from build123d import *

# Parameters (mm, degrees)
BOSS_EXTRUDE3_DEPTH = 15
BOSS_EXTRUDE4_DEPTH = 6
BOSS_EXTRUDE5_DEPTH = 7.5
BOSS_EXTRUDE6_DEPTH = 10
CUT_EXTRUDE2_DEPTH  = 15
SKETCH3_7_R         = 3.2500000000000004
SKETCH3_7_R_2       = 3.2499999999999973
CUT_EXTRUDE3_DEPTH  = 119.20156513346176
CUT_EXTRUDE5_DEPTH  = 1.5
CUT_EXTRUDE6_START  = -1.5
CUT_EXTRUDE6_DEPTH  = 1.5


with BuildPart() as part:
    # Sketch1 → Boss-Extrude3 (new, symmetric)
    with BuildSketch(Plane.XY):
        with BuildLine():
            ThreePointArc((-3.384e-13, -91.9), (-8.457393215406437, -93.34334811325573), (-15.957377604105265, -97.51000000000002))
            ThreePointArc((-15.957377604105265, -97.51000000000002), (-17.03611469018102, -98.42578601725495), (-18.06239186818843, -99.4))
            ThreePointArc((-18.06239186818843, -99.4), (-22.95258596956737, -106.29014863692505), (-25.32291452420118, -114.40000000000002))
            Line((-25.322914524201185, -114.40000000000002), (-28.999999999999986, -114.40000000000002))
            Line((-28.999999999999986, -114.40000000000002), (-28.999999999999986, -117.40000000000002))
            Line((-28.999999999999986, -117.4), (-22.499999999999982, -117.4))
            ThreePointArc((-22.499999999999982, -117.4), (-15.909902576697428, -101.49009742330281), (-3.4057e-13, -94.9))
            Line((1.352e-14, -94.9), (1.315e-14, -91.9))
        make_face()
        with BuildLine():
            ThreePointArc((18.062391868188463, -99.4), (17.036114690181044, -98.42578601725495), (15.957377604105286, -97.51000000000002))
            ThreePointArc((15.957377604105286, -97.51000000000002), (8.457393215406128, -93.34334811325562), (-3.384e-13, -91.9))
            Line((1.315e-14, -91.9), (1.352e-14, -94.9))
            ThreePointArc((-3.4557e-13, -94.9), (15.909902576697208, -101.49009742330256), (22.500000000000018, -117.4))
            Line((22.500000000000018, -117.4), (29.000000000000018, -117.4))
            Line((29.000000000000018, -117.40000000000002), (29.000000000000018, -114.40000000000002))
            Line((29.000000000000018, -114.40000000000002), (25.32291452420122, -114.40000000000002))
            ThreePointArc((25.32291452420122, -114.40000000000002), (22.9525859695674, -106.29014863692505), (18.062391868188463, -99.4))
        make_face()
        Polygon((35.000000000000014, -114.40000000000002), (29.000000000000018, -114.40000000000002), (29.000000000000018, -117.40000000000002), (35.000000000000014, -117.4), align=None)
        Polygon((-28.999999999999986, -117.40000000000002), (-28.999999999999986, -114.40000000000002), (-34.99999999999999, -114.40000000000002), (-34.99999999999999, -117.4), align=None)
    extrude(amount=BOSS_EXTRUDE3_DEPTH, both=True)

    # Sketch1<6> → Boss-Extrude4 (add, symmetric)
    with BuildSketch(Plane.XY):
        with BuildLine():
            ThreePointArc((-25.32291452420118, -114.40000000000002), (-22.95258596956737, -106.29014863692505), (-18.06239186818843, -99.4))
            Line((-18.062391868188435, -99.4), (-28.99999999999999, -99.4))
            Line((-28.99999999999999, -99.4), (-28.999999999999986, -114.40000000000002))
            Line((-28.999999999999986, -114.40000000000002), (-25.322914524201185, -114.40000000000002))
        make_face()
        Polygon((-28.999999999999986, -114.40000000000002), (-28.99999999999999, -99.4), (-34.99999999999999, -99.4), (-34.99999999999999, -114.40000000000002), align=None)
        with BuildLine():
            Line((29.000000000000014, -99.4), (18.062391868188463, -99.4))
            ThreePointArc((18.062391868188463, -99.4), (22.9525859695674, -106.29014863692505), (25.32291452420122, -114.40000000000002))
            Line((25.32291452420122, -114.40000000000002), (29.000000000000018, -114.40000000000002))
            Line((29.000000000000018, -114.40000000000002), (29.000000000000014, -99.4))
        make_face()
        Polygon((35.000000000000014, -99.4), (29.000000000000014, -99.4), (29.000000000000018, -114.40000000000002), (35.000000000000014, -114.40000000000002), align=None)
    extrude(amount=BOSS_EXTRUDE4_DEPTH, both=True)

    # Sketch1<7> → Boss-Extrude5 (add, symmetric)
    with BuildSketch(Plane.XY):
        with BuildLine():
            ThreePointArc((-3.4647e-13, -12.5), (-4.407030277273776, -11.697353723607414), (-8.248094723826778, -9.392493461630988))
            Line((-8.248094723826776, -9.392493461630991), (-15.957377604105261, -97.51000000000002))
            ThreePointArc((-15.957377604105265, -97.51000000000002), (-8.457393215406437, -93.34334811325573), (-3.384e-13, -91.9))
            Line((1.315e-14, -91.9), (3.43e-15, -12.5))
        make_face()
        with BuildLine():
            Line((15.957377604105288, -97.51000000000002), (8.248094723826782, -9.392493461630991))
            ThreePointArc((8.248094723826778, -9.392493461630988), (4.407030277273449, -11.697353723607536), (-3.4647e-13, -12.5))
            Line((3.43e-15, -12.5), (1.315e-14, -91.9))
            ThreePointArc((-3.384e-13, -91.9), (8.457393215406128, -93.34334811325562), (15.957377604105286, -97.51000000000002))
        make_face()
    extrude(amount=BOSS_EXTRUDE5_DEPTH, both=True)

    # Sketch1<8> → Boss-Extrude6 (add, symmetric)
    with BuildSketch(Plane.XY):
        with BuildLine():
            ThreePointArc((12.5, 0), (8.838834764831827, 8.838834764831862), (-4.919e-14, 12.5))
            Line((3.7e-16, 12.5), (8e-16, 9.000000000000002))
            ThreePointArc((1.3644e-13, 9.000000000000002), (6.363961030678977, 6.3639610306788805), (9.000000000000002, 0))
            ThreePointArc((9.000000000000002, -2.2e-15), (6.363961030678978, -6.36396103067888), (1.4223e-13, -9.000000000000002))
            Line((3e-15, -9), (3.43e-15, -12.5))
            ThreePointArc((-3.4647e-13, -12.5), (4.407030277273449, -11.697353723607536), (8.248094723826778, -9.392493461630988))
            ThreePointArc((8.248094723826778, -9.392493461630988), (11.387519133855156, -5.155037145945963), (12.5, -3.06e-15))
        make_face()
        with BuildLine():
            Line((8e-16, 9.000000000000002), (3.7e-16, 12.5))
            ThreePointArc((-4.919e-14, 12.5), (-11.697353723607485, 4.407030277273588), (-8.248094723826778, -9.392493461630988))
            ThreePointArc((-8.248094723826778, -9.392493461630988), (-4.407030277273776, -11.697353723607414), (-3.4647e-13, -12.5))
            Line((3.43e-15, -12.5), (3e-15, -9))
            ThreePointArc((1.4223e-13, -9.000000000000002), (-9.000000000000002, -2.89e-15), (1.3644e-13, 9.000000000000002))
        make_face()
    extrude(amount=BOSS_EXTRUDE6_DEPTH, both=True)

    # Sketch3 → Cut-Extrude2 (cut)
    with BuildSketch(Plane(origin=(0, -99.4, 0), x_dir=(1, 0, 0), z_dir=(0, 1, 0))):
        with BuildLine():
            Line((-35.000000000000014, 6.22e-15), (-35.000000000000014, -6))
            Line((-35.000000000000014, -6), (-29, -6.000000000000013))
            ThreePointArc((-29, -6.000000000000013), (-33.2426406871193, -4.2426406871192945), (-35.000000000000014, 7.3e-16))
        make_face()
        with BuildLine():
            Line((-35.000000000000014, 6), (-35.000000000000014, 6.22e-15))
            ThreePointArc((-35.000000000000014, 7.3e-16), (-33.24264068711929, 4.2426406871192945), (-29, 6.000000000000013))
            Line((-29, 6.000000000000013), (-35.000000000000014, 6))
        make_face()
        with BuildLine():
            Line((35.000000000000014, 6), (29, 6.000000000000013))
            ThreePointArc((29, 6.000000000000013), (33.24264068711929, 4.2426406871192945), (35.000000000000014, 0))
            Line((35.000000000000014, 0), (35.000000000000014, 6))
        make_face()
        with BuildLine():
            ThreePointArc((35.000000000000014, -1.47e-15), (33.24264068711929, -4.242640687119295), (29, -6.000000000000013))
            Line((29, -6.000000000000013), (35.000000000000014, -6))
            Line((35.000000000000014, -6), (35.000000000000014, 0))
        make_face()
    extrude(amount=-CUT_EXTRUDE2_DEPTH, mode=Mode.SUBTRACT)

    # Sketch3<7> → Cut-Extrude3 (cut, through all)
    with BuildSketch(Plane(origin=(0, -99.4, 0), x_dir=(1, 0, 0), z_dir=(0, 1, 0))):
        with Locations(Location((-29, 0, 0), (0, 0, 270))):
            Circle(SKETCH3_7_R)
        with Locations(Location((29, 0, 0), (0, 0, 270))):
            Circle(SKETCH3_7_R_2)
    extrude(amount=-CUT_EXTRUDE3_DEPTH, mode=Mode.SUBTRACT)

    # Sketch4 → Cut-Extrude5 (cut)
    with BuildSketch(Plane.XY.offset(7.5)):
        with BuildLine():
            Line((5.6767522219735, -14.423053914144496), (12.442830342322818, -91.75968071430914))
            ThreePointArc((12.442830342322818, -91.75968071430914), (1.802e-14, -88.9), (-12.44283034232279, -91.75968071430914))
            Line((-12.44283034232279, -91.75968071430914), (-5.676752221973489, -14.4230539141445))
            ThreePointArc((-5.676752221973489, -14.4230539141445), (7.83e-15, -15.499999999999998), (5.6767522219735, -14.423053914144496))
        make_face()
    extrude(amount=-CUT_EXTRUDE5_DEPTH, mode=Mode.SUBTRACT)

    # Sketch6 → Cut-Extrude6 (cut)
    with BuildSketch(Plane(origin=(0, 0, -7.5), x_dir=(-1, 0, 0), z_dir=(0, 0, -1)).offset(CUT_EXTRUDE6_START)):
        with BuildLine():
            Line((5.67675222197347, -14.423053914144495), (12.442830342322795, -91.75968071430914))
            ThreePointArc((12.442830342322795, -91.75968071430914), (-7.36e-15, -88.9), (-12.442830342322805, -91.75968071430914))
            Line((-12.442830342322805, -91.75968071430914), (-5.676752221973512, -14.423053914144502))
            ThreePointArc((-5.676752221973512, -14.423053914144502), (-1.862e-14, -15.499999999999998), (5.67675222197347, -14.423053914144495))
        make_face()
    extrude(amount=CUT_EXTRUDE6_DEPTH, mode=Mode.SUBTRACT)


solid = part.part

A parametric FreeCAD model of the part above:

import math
import FreeCAD as App
import Part
import Sketcher

V = App.Vector
Q = App.Units.Quantity

doc = App.newDocument("Part")
params = doc.addObject("Spreadsheet::Sheet", "Params")
for row, (alias, value) in enumerate([
    ("sketch1_radius", "22.5 mm"),
    ("sketch1_radius2", "25.5 mm"),
    ("sketch1_height", "3 mm"),
    ("sketch1_width", "12.5 mm"),
    ("pad1_length", "30 mm"),
    ("sketch2_radius", "25.5 mm"),
    ("sketch2_height", "15 mm"),
    ("sketch2_height2", "18 mm"),
    ("pad2_length", "12 mm"),
    ("sketch3_radius", "25.5 mm"),
    ("sketch3_radius2", "12.5 mm"),
    ("pad3_length", "15 mm"),
    ("sketch4_diameter", "25 mm"),
    ("sketch4_diameter2", "18 mm"),
    ("pad4_length", "20 mm"),
    ("sketch5_radius", "6 mm"),
    ("pocket1_length", "15 mm"),
    ("sketch6_diameter", "6.5 mm"),
    ("sketch7_radius", "15.5 mm"),
    ("sketch7_radius2", "28.5 mm"),
    ("pocket3_length", "1.5 mm"),
    ("sketch8_radius", "15.5 mm"),
    ("sketch8_radius2", "28.5 mm"),
    ("pocket4_length", "1.5 mm"),
], start=1):
    params.set(f"A{row}", alias)
    params.set(f"B{row}", "=" + value)
    params.setAlias(f"B{row}", alias)

body = doc.addObject("PartDesign::Body", "Body")

# Sketch on XY plane
sketch1 = doc.addObject("Sketcher::SketchObject", "Sketch")
body.addObject(sketch1)
sketch1.AttachmentSupport = (doc.XY_Plane, [""])
sketch1.MapMode = "FlatFace"
sketch1.addGeometry([
    Part.LineSegment(V(-25.322915, -114.4, 0), V(-35, -114.4, 0)),  # 0
    Part.LineSegment(V(-35, -114.4, 0), V(-35, -117.4, 0)),  # 1
    Part.LineSegment(V(-35, -117.4, 0), V(-22.5, -117.4, 0)),  # 2
    Part.ArcOfCircle(Part.Circle(V(0, -117.4, 0), V(0, 0, 1), 22.5), math.radians(0), math.radians(180)),  # 3
    Part.LineSegment(V(22.5, -117.4, 0), V(35, -117.4, 0)),  # 4
    Part.LineSegment(V(35, -117.4, 0), V(35, -114.4, 0)),  # 5
    Part.LineSegment(V(35, -114.4, 0), V(25.322915, -114.4, 0)),  # 6
    Part.ArcOfCircle(Part.Circle(V(0, -117.4, 0), V(0, 0, 1), 25.5), math.radians(6.756327), math.radians(173.243673)),  # 7
], False)
sketch1.addConstraint([
    Sketcher.Constraint("Coincident", 0, 2, 1, 1),
    Sketcher.Constraint("Coincident", 1, 2, 2, 1),
    Sketcher.Constraint("Coincident", 2, 2, 3, 2),
    Sketcher.Constraint("Coincident", 3, 1, 4, 1),
    Sketcher.Constraint("Coincident", 4, 2, 5, 1),
    Sketcher.Constraint("Coincident", 5, 2, 6, 1),
    Sketcher.Constraint("Coincident", 6, 2, 7, 1),
    Sketcher.Constraint("Coincident", 7, 2, 0, 1),
    Sketcher.Constraint("Horizontal", 0),
    Sketcher.Constraint("Vertical", 1),
    Sketcher.Constraint("Horizontal", 2),
    Sketcher.Constraint("Horizontal", 4),
    Sketcher.Constraint("Vertical", 5),
    Sketcher.Constraint("Horizontal", 6),
    Sketcher.Constraint("Coincident", 7, 3, 3, 3),
    Sketcher.Constraint("Symmetric", 2, 2, 3, 1, -2),
    Sketcher.Constraint("Symmetric", 0, 2, 5, 2, -2),
    Sketcher.Constraint("Horizontal", 7, 3, 1, 2),
    Sketcher.Constraint("Radius", 3, 22.5),
    Sketcher.Constraint("Radius", 7, 25.5),
    Sketcher.Constraint("DistanceY", 1, 2, 1, 1, 3.0),
    Sketcher.Constraint("DistanceX", 2, 1, 2, 2, 12.5),
    Sketcher.Constraint("DistanceY", 3, 3, -1, 1, 117.4),
])
sketch1.setExpression("Constraints[18]", "Params.sketch1_radius")
sketch1.setExpression("Constraints[19]", "Params.sketch1_radius2")
sketch1.setExpression("Constraints[20]", "Params.sketch1_height")
sketch1.setExpression("Constraints[21]", "Params.sketch1_width")
pad1 = doc.addObject("PartDesign::Pad", "Pad")
body.addObject(pad1)
pad1.Profile = sketch1
pad1.setExpression("Length", "Params.pad1_length")
pad1.Midplane = True

# Sketch on XY plane
sketch2 = doc.addObject("Sketcher::SketchObject", "Sketch001")
body.addObject(sketch2)
sketch2.AttachmentSupport = (doc.XY_Plane, [""])
sketch2.MapMode = "FlatFace"
sketch2.addGeometry([
    Part.ArcOfCircle(Part.Circle(V(0, -117.4, 0), V(0, 0, 1), 25.5), math.radians(135.099128), math.radians(173.243673)),  # 0
    Part.LineSegment(V(-18.062392, -99.4, 0), V(-35, -99.4, 0)),  # 1
    Part.LineSegment(V(-35, -99.4, 0), V(-35, -114.4, 0)),  # 2
    Part.LineSegment(V(-35, -114.4, 0), V(-25.322915, -114.4, 0)),  # 3
    Part.ArcOfCircle(Part.Circle(V(0, -117.4, 0), V(0, 0, 1), 25.5), math.radians(6.756327), math.radians(44.900872)),  # 4
    Part.LineSegment(V(25.322915, -114.4, 0), V(35, -114.4, 0)),  # 5
    Part.LineSegment(V(35, -114.4, 0), V(35, -99.4, 0)),  # 6
    Part.LineSegment(V(35, -99.4, 0), V(18.062392, -99.4, 0)),  # 7
], False)
sketch2.addConstraint([
    Sketcher.Constraint("Coincident", 0, 1, 1, 1),
    Sketcher.Constraint("Coincident", 1, 2, 2, 1),
    Sketcher.Constraint("Coincident", 2, 2, 3, 1),
    Sketcher.Constraint("Coincident", 3, 2, 0, 2),
    Sketcher.Constraint("Coincident", 4, 1, 5, 1),
    Sketcher.Constraint("Coincident", 5, 2, 6, 1),
    Sketcher.Constraint("Coincident", 6, 2, 7, 1),
    Sketcher.Constraint("Coincident", 7, 2, 4, 2),
    Sketcher.Constraint("Horizontal", 1),
    Sketcher.Constraint("Vertical", 2),
    Sketcher.Constraint("Horizontal", 3),
    Sketcher.Constraint("Horizontal", 5),
    Sketcher.Constraint("Vertical", 6),
    Sketcher.Constraint("Horizontal", 7),
    Sketcher.Constraint("Coincident", 4, 3, 0, 3),
    Sketcher.Constraint("Equal", 0, 4),
    Sketcher.Constraint("Symmetric", 3, 2, 4, 1, -2),
    Sketcher.Constraint("Symmetric", 1, 2, 6, 2, -2),
    Sketcher.Constraint("Radius", 0, 25.5),
    Sketcher.Constraint("DistanceY", 2, 2, 2, 1, 15.0),
    Sketcher.Constraint("DistanceX", 1, 2, -1, 1, 35.0),
    Sketcher.Constraint("DistanceY", 0, 3, 0, 1, 18.0),
    Sketcher.Constraint("DistanceY", 0, 3, -1, 1, 117.4),
])
sketch2.setExpression("Constraints[18]", "Params.sketch2_radius")
sketch2.setExpression("Constraints[19]", "Params.sketch2_height")
sketch2.setExpression("Constraints[21]", "Params.sketch2_height2")
pad2 = doc.addObject("PartDesign::Pad", "Pad001")
body.addObject(pad2)
pad2.Profile = sketch2
pad2.setExpression("Length", "Params.pad2_length")
pad2.Midplane = True

# Sketch on XY plane
sketch3 = doc.addObject("Sketcher::SketchObject", "Sketch002")
body.addObject(sketch3)
sketch3.AttachmentSupport = (doc.XY_Plane, [""])
sketch3.MapMode = "FlatFace"
sketch3.addGeometry([
    Part.LineSegment(V(-8.248095, -9.392493, 0), V(-15.957378, -97.51, 0)),
    Part.ArcOfCircle(Part.Circle(V(0, -117.4, 0), V(0, 0, 1), 25.5), math.radians(51.260575), math.radians(128.739425)),
    Part.LineSegment(V(15.957378, -97.51, 0), V(8.248095, -9.392493, 0)),
    Part.ArcOfCircle(Part.Circle(V(0, 0, 0), V(0, 0, 1), 12.5), math.radians(-131.288249), math.radians(-48.711751)),
], False)
sketch3.addConstraint([
    Sketcher.Constraint("Coincident", 0, 2, 1, 2),
    Sketcher.Constraint("Coincident", 1, 1, 2, 1),
    Sketcher.Constraint("Coincident", 2, 2, 3, 2),
    Sketcher.Constraint("Coincident", 3, 1, 0, 1),
    Sketcher.Constraint("Coincident", 3, 3, -1, 1),
    Sketcher.Constraint("Symmetric", 0, 2, 1, 1, -2),
    Sketcher.Constraint("Horizontal", 2, 2, 3, 1),
    Sketcher.Constraint("Radius", 1, 25.5),
    Sketcher.Constraint("Radius", 3, 12.5),
    Sketcher.Constraint("Angle", 0, Q("-95 deg")),
    Sketcher.Constraint("DistanceY", 1, 3, -1, 1, 117.4),
    Sketcher.Constraint("DistanceY", 0, 2, -1, 1, 97.51),
])
sketch3.setExpression("Constraints[7]", "Params.sketch3_radius")
sketch3.setExpression("Constraints[8]", "Params.sketch3_radius2")
pad3 = doc.addObject("PartDesign::Pad", "Pad002")
body.addObject(pad3)
pad3.Profile = sketch3
pad3.setExpression("Length", "Params.pad3_length")
pad3.Midplane = True

# Sketch on XY plane
sketch4 = doc.addObject("Sketcher::SketchObject", "Sketch003")
body.addObject(sketch4)
sketch4.AttachmentSupport = (doc.XY_Plane, [""])
sketch4.MapMode = "FlatFace"
sketch4.addGeometry([
    Part.Circle(V(0, 0, 0), V(0, 0, 1), 12.5),
    Part.Circle(V(0, 0, 0), V(0, 0, 1), 9),
], False)
sketch4.addConstraint([
    Sketcher.Constraint("Coincident", 0, 3, -1, 1),
    Sketcher.Constraint("Coincident", 1, 3, -1, 1),
    Sketcher.Constraint("Diameter", 0, 25.0),
    Sketcher.Constraint("Diameter", 1, 18.0),
])
sketch4.setExpression("Constraints[2]", "Params.sketch4_diameter")
sketch4.setExpression("Constraints[3]", "Params.sketch4_diameter2")
pad4 = doc.addObject("PartDesign::Pad", "Pad003")
body.addObject(pad4)
pad4.Profile = sketch4
pad4.setExpression("Length", "Params.pad4_length")
pad4.Midplane = True

# Sketch on XZ plane
sketch5 = doc.addObject("Sketcher::SketchObject", "Sketch004")
body.addObject(sketch5)
sketch5.AttachmentSupport = (doc.XZ_Plane, [""])
sketch5.MapMode = "FlatFace"
sketch5.AttachmentOffset = App.Placement(V(0, 0, 99.4), App.Rotation())
sketch5.addGeometry([
    Part.LineSegment(V(-35, 0, 0), V(-35, 6, 0)),  # 0
    Part.LineSegment(V(-35, 6, 0), V(-29, 6, 0)),  # 1
    Part.ArcOfCircle(Part.Circle(V(-29, 0, 0), V(0, 0, 1), 6), math.radians(90), math.radians(180)),  # 2
    Part.LineSegment(V(-35, -6, 0), V(-35, 0, 0)),  # 3
    Part.ArcOfCircle(Part.Circle(V(-29, 0, 0), V(0, 0, 1), 6), math.radians(180), math.radians(270)),  # 4
    Part.LineSegment(V(-29, -6, 0), V(-35, -6, 0)),  # 5
    Part.LineSegment(V(35, -6, 0), V(29, -6, 0)),  # 6
    Part.ArcOfCircle(Part.Circle(V(29, 0, 0), V(0, 0, 1), 6), math.radians(-90), math.radians(0)),  # 7
    Part.LineSegment(V(35, 0, 0), V(35, -6, 0)),  # 8
    Part.ArcOfCircle(Part.Circle(V(29, 0, 0), V(0, 0, 1), 6), math.radians(0), math.radians(90)),  # 9
    Part.LineSegment(V(29, 6, 0), V(35, 6, 0)),  # 10
    Part.LineSegment(V(35, 6, 0), V(35, 0, 0)),  # 11
], False)
sketch5.addConstraint([
    Sketcher.Constraint("Coincident", 0, 2, 1, 1),
    Sketcher.Constraint("Tangent", 1, 2, 2, 1),
    Sketcher.Constraint("Tangent", 2, 2, 0, 1),
    Sketcher.Constraint("Tangent", 3, 2, 4, 1),
    Sketcher.Constraint("Tangent", 4, 2, 5, 1),
    Sketcher.Constraint("Coincident", 5, 2, 3, 1),
    Sketcher.Constraint("Tangent", 6, 2, 7, 1),
    Sketcher.Constraint("Tangent", 7, 2, 8, 1),
    Sketcher.Constraint("Coincident", 8, 2, 6, 1),
    Sketcher.Constraint("Tangent", 9, 2, 10, 1),
    Sketcher.Constraint("Coincident", 10, 2, 11, 1),
    Sketcher.Constraint("Tangent", 11, 2, 9, 1),
    Sketcher.Constraint("Vertical", 0),
    Sketcher.Constraint("Horizontal", 1),
    Sketcher.Constraint("Vertical", 3),
    Sketcher.Constraint("Horizontal", 5),
    Sketcher.Constraint("Horizontal", 6),
    Sketcher.Constraint("Vertical", 8),
    Sketcher.Constraint("Horizontal", 10),
    Sketcher.Constraint("Vertical", 11),
    Sketcher.Constraint("Coincident", 4, 3, 2, 3),
    Sketcher.Constraint("Coincident", 9, 3, 7, 3),
    Sketcher.Constraint("Equal", 2, 4),
    Sketcher.Constraint("Equal", 4, 7),
    Sketcher.Constraint("Equal", 7, 9),
    Sketcher.Constraint("Symmetric", 2, 3, 7, 3, -1, 1),
    Sketcher.Constraint("PointOnObject", 2, 3, -1),
    Sketcher.Constraint("Radius", 2, 6.0),
    Sketcher.Constraint("DistanceX", 2, 3, -1, 1, 29.0),
])
sketch5.setExpression("Constraints[27]", "Params.sketch5_radius")
pocket1 = doc.addObject("PartDesign::Pocket", "Pocket")
body.addObject(pocket1)
pocket1.Profile = sketch5
pocket1.setExpression("Length", "Params.pocket1_length")
pocket1.Reversed = True

# Sketch on XZ plane
sketch6 = doc.addObject("Sketcher::SketchObject", "Sketch005")
body.addObject(sketch6)
sketch6.AttachmentSupport = (doc.XZ_Plane, [""])
sketch6.MapMode = "FlatFace"
sketch6.AttachmentOffset = App.Placement(V(0, 0, 99.4), App.Rotation())
sketch6.addGeometry([
    Part.Circle(V(-29, 0, 0), V(0, 0, 1), 3.25),
    Part.Circle(V(29, 0, 0), V(0, 0, 1), 3.25),
], False)
sketch6.addConstraint([
    Sketcher.Constraint("Equal", 0, 1),
    Sketcher.Constraint("Symmetric", 0, 3, 1, 3, -1, 1),
    Sketcher.Constraint("PointOnObject", 0, 3, -1),
    Sketcher.Constraint("Diameter", 0, 6.5),
    Sketcher.Constraint("DistanceX", 0, 3, -1, 1, 29.0),
])
sketch6.setExpression("Constraints[3]", "Params.sketch6_diameter")
pocket2 = doc.addObject("PartDesign::Pocket", "Pocket001")
body.addObject(pocket2)
pocket2.Profile = sketch6
pocket2.Type = "ThroughAll"
pocket2.Reversed = True

# Sketch on XY plane
sketch7 = doc.addObject("Sketcher::SketchObject", "Sketch006")
body.addObject(sketch7)
sketch7.AttachmentSupport = (doc.XY_Plane, [""])
sketch7.MapMode = "FlatFace"
sketch7.AttachmentOffset = App.Placement(V(0, 0, 7.5), App.Rotation())
sketch7.addGeometry([
    Part.LineSegment(V(12.44283, -91.759681, 0), V(5.676752, -14.423054, 0)),
    Part.ArcOfCircle(Part.Circle(V(0, 0, 0), V(0, 0, 1), 15.5), math.radians(-111.484042), math.radians(-68.515958)),
    Part.LineSegment(V(-5.676752, -14.423054, 0), V(-12.44283, -91.759681, 0)),
    Part.ArcOfCircle(Part.Circle(V(0, -117.4, 0), V(0, 0, 1), 28.5), math.radians(64.113454), math.radians(115.886546)),
], False)
sketch7.addConstraint([
    Sketcher.Constraint("Coincident", 0, 2, 1, 2),
    Sketcher.Constraint("Coincident", 1, 1, 2, 1),
    Sketcher.Constraint("Coincident", 2, 2, 3, 2),
    Sketcher.Constraint("Coincident", 3, 1, 0, 1),
    Sketcher.Constraint("Coincident", 1, 3, -1, 1),
    Sketcher.Constraint("Symmetric", 2, 2, 3, 1, -2),
    Sketcher.Constraint("Horizontal", 0, 2, 1, 1),
    Sketcher.Constraint("Radius", 1, 15.5),
    Sketcher.Constraint("Radius", 3, 28.5),
    Sketcher.Constraint("Angle", 0, Q("95 deg")),
    Sketcher.Constraint("DistanceY", 3, 3, -1, 1, 117.4),
    Sketcher.Constraint("Distance", 0, 77.63204),
])
sketch7.setExpression("Constraints[7]", "Params.sketch7_radius")
sketch7.setExpression("Constraints[8]", "Params.sketch7_radius2")
pocket3 = doc.addObject("PartDesign::Pocket", "Pocket002")
body.addObject(pocket3)
pocket3.Profile = sketch7
pocket3.setExpression("Length", "Params.pocket3_length")

# Sketch on XY plane
sketch8 = doc.addObject("Sketcher::SketchObject", "Sketch007")
body.addObject(sketch8)
sketch8.AttachmentSupport = (doc.XY_Plane, [""])
sketch8.MapMode = "FlatFace"
sketch8.AttachmentOffset = App.Placement(V(0, 0, -6), App.Rotation())
sketch8.addGeometry([
    Part.LineSegment(V(-12.44283, -91.759681, 0), V(-5.676752, -14.423054, 0)),
    Part.ArcOfCircle(Part.Circle(V(0, 0, 0), V(0, 0, 1), 15.5), math.radians(-111.484042), math.radians(-68.515958)),
    Part.LineSegment(V(5.676752, -14.423054, 0), V(12.44283, -91.759681, 0)),
    Part.ArcOfCircle(Part.Circle(V(0, -117.4, 0), V(0, 0, 1), 28.5), math.radians(64.113454), math.radians(115.886546)),
], False)
sketch8.addConstraint([
    Sketcher.Constraint("Coincident", 0, 2, 1, 1),
    Sketcher.Constraint("Coincident", 1, 2, 2, 1),
    Sketcher.Constraint("Coincident", 2, 2, 3, 1),
    Sketcher.Constraint("Coincident", 3, 2, 0, 1),
    Sketcher.Constraint("Coincident", 1, 3, -1, 1),
    Sketcher.Constraint("Symmetric", 2, 2, 3, 2, -2),
    Sketcher.Constraint("Horizontal", 0, 2, 1, 2),
    Sketcher.Constraint("Radius", 1, 15.5),
    Sketcher.Constraint("Radius", 3, 28.5),
    Sketcher.Constraint("Angle", 0, Q("85 deg")),
    Sketcher.Constraint("DistanceY", 3, 3, -1, 1, 117.4),
    Sketcher.Constraint("Distance", 0, 77.63204),
])
sketch8.setExpression("Constraints[7]", "Params.sketch8_radius")
sketch8.setExpression("Constraints[8]", "Params.sketch8_radius2")
pocket4 = doc.addObject("PartDesign::Pocket", "Pocket003")
body.addObject(pocket4)
pocket4.Profile = sketch8
pocket4.setExpression("Length", "Params.pocket4_length")

doc.recompute()
